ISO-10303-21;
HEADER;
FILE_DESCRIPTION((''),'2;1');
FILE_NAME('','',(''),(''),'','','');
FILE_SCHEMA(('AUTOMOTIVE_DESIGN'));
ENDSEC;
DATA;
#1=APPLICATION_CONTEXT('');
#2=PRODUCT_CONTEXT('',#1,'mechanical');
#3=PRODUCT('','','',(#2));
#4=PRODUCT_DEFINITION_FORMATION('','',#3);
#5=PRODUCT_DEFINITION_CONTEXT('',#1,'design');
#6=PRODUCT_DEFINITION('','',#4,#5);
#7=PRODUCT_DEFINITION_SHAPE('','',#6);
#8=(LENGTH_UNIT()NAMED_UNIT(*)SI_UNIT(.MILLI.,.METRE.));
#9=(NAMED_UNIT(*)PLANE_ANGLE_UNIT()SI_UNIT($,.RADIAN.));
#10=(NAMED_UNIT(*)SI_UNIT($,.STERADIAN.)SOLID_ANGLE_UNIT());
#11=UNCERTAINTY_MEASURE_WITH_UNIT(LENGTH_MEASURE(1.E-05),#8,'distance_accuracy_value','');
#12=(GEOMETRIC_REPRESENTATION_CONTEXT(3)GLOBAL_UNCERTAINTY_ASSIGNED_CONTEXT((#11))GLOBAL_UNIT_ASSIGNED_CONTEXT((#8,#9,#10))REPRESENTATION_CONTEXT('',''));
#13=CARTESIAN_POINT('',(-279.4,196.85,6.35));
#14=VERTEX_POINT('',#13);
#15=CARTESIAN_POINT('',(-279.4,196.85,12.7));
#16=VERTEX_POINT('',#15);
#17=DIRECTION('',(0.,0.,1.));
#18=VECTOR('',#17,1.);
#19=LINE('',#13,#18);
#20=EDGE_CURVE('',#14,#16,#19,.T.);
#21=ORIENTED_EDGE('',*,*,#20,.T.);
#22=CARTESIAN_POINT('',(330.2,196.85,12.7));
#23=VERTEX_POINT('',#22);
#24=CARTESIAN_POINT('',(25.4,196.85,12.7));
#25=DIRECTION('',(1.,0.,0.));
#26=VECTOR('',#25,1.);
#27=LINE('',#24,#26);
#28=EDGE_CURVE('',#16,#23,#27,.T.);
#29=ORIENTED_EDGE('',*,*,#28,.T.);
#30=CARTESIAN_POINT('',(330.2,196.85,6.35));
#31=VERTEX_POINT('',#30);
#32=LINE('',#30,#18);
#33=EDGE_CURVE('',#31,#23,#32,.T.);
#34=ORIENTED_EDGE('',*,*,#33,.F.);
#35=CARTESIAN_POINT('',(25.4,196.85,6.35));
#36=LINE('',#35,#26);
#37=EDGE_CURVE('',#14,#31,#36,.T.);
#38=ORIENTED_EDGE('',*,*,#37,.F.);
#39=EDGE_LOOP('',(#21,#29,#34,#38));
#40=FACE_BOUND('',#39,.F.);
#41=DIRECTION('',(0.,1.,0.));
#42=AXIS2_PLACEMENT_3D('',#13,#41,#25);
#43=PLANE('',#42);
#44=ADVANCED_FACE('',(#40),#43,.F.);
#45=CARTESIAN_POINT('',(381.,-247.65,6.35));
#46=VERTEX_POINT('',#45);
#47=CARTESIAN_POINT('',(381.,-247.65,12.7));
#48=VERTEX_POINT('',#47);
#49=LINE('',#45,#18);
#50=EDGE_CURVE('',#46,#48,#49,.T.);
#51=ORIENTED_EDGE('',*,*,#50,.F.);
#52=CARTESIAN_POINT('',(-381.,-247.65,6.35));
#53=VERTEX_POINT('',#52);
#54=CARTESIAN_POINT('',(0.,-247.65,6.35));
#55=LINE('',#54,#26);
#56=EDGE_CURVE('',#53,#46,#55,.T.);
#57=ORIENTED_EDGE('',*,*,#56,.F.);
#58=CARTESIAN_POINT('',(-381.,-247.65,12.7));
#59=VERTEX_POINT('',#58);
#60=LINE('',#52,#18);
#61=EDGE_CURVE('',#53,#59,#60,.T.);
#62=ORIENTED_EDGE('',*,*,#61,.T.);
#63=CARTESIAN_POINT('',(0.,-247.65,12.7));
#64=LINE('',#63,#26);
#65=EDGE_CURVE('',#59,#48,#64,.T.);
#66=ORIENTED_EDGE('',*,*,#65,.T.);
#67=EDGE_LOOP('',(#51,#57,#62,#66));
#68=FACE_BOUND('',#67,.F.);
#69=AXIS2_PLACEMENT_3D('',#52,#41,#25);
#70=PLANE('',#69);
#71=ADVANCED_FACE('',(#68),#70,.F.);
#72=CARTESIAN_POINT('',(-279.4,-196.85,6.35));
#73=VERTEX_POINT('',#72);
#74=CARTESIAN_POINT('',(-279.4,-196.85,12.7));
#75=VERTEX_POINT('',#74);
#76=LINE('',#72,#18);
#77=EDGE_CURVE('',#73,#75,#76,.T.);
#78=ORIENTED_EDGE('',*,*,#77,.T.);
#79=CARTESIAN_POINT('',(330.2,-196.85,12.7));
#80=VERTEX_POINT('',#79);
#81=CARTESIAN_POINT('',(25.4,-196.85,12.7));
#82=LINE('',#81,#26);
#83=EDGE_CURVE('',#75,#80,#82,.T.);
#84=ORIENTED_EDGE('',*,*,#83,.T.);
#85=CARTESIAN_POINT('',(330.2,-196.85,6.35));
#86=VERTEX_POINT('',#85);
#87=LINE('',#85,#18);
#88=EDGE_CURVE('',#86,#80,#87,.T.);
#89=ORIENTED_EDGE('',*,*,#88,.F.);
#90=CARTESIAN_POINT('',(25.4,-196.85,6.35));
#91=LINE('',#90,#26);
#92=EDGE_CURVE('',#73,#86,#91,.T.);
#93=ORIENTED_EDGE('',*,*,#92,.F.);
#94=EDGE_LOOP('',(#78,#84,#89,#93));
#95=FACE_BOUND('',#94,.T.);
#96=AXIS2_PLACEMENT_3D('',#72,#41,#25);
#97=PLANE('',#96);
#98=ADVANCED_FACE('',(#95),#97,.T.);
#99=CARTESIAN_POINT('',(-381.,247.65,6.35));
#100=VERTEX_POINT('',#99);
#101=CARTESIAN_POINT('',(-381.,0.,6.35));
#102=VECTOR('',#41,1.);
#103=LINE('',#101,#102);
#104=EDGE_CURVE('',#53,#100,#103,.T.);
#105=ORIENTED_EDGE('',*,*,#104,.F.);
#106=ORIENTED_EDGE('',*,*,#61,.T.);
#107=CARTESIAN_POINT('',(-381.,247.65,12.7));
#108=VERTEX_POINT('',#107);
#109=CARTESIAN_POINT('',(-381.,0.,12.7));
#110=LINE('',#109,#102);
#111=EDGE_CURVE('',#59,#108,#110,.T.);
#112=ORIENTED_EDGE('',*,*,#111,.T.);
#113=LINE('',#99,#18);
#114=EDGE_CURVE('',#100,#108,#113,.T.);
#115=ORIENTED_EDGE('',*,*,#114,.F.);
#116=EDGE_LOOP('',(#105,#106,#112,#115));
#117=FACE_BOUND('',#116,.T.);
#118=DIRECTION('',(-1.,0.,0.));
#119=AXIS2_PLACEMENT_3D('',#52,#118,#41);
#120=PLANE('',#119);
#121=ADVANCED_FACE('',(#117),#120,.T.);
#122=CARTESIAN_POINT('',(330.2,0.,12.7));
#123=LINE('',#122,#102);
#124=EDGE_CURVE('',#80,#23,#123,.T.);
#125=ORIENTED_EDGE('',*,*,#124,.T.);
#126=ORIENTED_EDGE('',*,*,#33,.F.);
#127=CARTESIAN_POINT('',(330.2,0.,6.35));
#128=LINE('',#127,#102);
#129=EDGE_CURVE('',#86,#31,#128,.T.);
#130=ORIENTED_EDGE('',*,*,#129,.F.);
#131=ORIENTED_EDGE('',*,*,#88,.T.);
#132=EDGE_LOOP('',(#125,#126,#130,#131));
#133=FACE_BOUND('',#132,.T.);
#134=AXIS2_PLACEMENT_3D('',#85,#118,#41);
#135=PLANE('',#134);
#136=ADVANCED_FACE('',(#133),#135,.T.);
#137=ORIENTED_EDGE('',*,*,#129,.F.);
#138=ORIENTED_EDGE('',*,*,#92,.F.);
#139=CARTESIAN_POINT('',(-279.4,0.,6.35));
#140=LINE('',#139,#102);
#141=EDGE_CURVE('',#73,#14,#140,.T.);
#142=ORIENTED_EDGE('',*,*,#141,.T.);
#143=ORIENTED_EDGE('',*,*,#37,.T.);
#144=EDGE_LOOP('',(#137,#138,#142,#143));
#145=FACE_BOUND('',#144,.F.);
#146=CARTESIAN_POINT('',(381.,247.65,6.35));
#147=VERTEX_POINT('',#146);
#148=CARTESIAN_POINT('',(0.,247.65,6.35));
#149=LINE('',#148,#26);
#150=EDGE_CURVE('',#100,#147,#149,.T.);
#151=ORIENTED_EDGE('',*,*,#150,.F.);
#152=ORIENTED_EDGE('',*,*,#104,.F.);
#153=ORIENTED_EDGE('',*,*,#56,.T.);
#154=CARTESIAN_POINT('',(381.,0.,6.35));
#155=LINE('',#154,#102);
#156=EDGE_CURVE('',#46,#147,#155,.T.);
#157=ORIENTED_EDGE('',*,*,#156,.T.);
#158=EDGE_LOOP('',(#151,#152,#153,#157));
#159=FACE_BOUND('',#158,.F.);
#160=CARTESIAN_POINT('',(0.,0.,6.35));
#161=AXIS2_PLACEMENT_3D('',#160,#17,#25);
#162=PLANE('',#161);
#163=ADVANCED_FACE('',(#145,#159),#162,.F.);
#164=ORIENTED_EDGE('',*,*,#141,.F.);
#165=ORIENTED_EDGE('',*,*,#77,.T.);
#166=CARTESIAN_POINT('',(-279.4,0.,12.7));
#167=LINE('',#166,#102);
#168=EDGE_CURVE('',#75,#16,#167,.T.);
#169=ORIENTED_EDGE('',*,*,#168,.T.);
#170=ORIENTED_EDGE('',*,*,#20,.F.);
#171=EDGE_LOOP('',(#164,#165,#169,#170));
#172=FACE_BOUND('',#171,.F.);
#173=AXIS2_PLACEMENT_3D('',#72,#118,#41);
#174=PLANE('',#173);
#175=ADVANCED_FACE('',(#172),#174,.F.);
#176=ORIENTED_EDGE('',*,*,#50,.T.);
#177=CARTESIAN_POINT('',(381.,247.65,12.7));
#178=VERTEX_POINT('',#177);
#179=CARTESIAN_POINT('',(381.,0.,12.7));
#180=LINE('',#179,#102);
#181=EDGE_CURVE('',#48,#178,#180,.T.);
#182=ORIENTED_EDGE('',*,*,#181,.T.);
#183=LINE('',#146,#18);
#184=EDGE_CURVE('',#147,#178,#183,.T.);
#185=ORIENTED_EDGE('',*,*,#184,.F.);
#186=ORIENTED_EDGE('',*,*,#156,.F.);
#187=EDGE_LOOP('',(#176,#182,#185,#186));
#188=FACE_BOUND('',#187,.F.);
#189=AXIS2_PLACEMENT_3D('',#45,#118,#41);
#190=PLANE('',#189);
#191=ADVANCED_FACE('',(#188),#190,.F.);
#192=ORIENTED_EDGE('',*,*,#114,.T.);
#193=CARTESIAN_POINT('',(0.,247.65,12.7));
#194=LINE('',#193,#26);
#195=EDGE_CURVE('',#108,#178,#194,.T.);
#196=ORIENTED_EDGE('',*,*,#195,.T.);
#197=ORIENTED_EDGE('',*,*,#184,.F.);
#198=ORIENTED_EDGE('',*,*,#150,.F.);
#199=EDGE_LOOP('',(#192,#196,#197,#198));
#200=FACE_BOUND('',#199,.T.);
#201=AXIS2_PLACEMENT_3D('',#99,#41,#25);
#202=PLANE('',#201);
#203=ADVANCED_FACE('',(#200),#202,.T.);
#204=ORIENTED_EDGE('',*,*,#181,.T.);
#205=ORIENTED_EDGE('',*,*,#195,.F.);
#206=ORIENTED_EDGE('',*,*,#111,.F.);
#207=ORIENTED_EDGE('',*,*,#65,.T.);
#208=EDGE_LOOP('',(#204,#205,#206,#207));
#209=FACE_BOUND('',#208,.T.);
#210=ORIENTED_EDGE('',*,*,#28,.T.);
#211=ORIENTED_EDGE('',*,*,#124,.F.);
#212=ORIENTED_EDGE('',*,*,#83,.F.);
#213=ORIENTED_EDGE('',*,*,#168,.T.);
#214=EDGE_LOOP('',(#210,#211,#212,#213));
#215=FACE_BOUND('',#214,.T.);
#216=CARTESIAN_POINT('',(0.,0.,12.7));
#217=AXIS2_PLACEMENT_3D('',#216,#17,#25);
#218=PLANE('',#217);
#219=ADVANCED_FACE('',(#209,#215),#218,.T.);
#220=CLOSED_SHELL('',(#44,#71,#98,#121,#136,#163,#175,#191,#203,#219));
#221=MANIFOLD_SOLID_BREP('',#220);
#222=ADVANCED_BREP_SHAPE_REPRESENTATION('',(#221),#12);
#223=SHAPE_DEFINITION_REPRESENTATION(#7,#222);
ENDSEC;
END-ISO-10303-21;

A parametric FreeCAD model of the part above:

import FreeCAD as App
import Part
import Sketcher
Q = App.Units.Quantity

doc = App.newDocument("Part")
body = doc.addObject("PartDesign::Body", "Body")

sketch1 = body.newObject("Sketcher::SketchObject", "Sketch")
sketch1.AttachmentSupport = (doc.getObject("XY_Plane"), [""])
sketch1.MapMode = "FlatFace"
sketch1.AttachmentOffset = App.Placement(App.Vector(0, 0, 0.25 * 25.4), App.Rotation())
sketch1.addGeometry([
    Part.LineSegment(App.Vector(-381, 248, 0), App.Vector(-381, -248, 0)),
    Part.LineSegment(App.Vector(-381, -248, 0), App.Vector(381, -248, 0)),
    Part.LineSegment(App.Vector(381, -248, 0), App.Vector(381, 248, 0)),
    Part.LineSegment(App.Vector(381, 248, 0), App.Vector(-381, 248, 0)),
    Part.LineSegment(App.Vector(330, -197, 0), App.Vector(-279, -197, 0)),
    Part.LineSegment(App.Vector(-279, -197, 0), App.Vector(-279, 197, 0)),
    Part.LineSegment(App.Vector(-279, 197, 0), App.Vector(330, 197, 0)),
    Part.LineSegment(App.Vector(330, 197, 0), App.Vector(330, -197, 0)),
], False)
sketch1.addConstraint([
    Sketcher.Constraint("Coincident", 0, 2, 1, 1),
    Sketcher.Constraint("Coincident", 1, 2, 2, 1),
    Sketcher.Constraint("Coincident", 2, 2, 3, 1),
    Sketcher.Constraint("Coincident", 3, 2, 0, 1),
    Sketcher.Constraint("Coincident", 4, 2, 5, 1),
    Sketcher.Constraint("Coincident", 5, 2, 6, 1),
    Sketcher.Constraint("Coincident", 6, 2, 7, 1),
    Sketcher.Constraint("Coincident", 7, 2, 4, 1),
    Sketcher.Constraint("Vertical", 0),
    Sketcher.Constraint("Horizontal", 1),
    Sketcher.Constraint("Vertical", 2),
    Sketcher.Constraint("Horizontal", 3),
    Sketcher.Constraint("Horizontal", 4),
    Sketcher.Constraint("Vertical", 5),
    Sketcher.Constraint("Horizontal", 6),
    Sketcher.Constraint("Vertical", 7),
    Sketcher.Constraint("Symmetric", 0, 2, 2, 2, -1, 1),
    Sketcher.Constraint("DistanceX", 1, 1, 1, 2, Q("30 in")),
    Sketcher.Constraint("DistanceX", 4, 2, 4, 1, Q("24 in")),
    Sketcher.Constraint("DistanceY", 0, 2, 0, 1, Q("19.5 in")),
    Sketcher.Constraint("DistanceY", 5, 1, 5, 2, Q("15.5 in")),
    Sketcher.Constraint("DistanceX", 4, 2, -1, 1, Q("11 in")),
    Sketcher.Constraint("DistanceY", 0, 2, 4, 2, Q("2 in")),
])
pad1 = body.newObject("PartDesign::Pad", "Pad")
pad1.Profile = sketch1
pad1.Length = Q("0.25 in")

doc.recompute()
